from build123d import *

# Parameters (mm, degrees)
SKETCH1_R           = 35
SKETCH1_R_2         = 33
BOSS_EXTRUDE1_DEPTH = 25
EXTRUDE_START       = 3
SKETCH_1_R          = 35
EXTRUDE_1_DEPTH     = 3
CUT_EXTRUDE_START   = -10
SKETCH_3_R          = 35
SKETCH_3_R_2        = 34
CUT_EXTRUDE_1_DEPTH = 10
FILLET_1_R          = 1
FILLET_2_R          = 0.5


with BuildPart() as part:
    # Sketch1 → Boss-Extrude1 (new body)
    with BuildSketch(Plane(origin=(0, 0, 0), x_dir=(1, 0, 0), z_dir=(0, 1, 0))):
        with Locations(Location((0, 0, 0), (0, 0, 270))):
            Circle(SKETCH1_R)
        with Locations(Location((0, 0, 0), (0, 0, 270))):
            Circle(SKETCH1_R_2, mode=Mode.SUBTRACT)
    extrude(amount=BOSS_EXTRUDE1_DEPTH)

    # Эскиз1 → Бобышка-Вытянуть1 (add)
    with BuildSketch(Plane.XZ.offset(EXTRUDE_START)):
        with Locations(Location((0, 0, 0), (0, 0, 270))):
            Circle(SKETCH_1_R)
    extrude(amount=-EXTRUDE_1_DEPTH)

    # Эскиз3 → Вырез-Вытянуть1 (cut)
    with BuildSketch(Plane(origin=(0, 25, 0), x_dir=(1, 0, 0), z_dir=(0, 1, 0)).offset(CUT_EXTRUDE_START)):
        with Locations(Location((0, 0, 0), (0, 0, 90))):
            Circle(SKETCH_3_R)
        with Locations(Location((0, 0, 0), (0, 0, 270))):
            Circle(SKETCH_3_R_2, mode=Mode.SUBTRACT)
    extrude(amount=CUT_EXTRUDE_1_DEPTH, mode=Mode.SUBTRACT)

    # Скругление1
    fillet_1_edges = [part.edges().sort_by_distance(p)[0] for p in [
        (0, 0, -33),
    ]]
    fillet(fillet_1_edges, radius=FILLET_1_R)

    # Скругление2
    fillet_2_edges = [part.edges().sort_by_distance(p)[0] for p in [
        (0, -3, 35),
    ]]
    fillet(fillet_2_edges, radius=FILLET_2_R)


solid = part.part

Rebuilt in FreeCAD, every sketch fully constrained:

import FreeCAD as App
import Part
import Sketcher

V = App.Vector
Q = App.Units.Quantity


def edges_at(feature, points):
    """Names of the edges that pass closest to the given points."""
    edges = feature.Shape.Edges
    near = lambda p: min(range(len(edges)), key=lambda i: edges[i].distToShape(Part.Vertex(*p))[0])
    return sorted({f"Edge{near(p) + 1}" for p in points})

doc = App.newDocument("Part")
body = doc.addObject("PartDesign::Body", "Body")

sketch1 = body.newObject("Sketcher::SketchObject", "Sketch")
sketch1.AttachmentSupport = (doc.getObject("XZ_Plane"), [""])
sketch1.MapMode = "FlatFace"
sketch1.addGeometry(Part.Circle(V(0, 0, 0), V(0, 0, 1), 35), False)
sketch1.addGeometry(Part.Circle(V(0, 0, 0), V(0, 0, 1), 33), False)
sketch1.addConstraint(Sketcher.Constraint("Coincident", 0, 3, -1, 1))
sketch1.addConstraint(Sketcher.Constraint("Coincident", 1, 3, -1, 1))
sketch1.addConstraint(Sketcher.Constraint("Diameter", 0, Q("70 mm")))
sketch1.addConstraint(Sketcher.Constraint("Diameter", 1, Q("66 mm")))
pad1 = body.newObject("PartDesign::Pad", "Pad")
pad1.Profile = sketch1
pad1.Length = 25
pad1.Reversed = True

sketch2 = body.newObject("Sketcher::SketchObject", "Sketch001")
sketch2.AttachmentSupport = (doc.getObject("XZ_Plane"), [""])
sketch2.MapMode = "FlatFace"
sketch2.AttachmentOffset = App.Placement(V(0, 0, 3), App.Rotation())
sketch2.addGeometry(Part.Circle(V(0, 0, 0), V(0, 0, 1), 35), False)
sketch2.addConstraint(Sketcher.Constraint("Coincident", 0, 3, -1, 1))
sketch2.addConstraint(Sketcher.Constraint("Diameter", 0, Q("70 mm")))
pad2 = body.newObject("PartDesign::Pad", "Pad001")
pad2.Profile = sketch2
pad2.Length = 3
pad2.Reversed = True

sketch3 = body.newObject("Sketcher::SketchObject", "Sketch002")
sketch3.AttachmentSupport = (doc.getObject("XZ_Plane"), [""])
sketch3.MapMode = "FlatFace"
sketch3.AttachmentOffset = App.Placement(V(0, 0, -15), App.Rotation())
sketch3.addGeometry(Part.Circle(V(0, 0, 0), V(0, 0, 1), 35), False)
sketch3.addGeometry(Part.Circle(V(0, 0, 0), V(0, 0, 1), 34), False)
sketch3.addConstraint(Sketcher.Constraint("Coincident", 0, 3, -1, 1))
sketch3.addConstraint(Sketcher.Constraint("Coincident", 1, 3, -1, 1))
sketch3.addConstraint(Sketcher.Constraint("Diameter", 0, Q("70 mm")))
sketch3.addConstraint(Sketcher.Constraint("Diameter", 1, Q("68 mm")))
pocket1 = body.newObject("PartDesign::Pocket", "Pocket")
pocket1.Profile = sketch3
pocket1.Length = 10
doc.recompute()

fillet = body.newObject("PartDesign::Fillet", "Fillet")
fillet.Base = (pocket1, edges_at(pocket1, [(0, 0, -33)]))
fillet.Radius = 1
doc.recompute()

fillet2 = body.newObject("PartDesign::Fillet", "Fillet001")
fillet2.Base = (fillet, edges_at(fillet, [(0, -3, 35)]))
fillet2.Radius = 0.5

doc.recompute()
